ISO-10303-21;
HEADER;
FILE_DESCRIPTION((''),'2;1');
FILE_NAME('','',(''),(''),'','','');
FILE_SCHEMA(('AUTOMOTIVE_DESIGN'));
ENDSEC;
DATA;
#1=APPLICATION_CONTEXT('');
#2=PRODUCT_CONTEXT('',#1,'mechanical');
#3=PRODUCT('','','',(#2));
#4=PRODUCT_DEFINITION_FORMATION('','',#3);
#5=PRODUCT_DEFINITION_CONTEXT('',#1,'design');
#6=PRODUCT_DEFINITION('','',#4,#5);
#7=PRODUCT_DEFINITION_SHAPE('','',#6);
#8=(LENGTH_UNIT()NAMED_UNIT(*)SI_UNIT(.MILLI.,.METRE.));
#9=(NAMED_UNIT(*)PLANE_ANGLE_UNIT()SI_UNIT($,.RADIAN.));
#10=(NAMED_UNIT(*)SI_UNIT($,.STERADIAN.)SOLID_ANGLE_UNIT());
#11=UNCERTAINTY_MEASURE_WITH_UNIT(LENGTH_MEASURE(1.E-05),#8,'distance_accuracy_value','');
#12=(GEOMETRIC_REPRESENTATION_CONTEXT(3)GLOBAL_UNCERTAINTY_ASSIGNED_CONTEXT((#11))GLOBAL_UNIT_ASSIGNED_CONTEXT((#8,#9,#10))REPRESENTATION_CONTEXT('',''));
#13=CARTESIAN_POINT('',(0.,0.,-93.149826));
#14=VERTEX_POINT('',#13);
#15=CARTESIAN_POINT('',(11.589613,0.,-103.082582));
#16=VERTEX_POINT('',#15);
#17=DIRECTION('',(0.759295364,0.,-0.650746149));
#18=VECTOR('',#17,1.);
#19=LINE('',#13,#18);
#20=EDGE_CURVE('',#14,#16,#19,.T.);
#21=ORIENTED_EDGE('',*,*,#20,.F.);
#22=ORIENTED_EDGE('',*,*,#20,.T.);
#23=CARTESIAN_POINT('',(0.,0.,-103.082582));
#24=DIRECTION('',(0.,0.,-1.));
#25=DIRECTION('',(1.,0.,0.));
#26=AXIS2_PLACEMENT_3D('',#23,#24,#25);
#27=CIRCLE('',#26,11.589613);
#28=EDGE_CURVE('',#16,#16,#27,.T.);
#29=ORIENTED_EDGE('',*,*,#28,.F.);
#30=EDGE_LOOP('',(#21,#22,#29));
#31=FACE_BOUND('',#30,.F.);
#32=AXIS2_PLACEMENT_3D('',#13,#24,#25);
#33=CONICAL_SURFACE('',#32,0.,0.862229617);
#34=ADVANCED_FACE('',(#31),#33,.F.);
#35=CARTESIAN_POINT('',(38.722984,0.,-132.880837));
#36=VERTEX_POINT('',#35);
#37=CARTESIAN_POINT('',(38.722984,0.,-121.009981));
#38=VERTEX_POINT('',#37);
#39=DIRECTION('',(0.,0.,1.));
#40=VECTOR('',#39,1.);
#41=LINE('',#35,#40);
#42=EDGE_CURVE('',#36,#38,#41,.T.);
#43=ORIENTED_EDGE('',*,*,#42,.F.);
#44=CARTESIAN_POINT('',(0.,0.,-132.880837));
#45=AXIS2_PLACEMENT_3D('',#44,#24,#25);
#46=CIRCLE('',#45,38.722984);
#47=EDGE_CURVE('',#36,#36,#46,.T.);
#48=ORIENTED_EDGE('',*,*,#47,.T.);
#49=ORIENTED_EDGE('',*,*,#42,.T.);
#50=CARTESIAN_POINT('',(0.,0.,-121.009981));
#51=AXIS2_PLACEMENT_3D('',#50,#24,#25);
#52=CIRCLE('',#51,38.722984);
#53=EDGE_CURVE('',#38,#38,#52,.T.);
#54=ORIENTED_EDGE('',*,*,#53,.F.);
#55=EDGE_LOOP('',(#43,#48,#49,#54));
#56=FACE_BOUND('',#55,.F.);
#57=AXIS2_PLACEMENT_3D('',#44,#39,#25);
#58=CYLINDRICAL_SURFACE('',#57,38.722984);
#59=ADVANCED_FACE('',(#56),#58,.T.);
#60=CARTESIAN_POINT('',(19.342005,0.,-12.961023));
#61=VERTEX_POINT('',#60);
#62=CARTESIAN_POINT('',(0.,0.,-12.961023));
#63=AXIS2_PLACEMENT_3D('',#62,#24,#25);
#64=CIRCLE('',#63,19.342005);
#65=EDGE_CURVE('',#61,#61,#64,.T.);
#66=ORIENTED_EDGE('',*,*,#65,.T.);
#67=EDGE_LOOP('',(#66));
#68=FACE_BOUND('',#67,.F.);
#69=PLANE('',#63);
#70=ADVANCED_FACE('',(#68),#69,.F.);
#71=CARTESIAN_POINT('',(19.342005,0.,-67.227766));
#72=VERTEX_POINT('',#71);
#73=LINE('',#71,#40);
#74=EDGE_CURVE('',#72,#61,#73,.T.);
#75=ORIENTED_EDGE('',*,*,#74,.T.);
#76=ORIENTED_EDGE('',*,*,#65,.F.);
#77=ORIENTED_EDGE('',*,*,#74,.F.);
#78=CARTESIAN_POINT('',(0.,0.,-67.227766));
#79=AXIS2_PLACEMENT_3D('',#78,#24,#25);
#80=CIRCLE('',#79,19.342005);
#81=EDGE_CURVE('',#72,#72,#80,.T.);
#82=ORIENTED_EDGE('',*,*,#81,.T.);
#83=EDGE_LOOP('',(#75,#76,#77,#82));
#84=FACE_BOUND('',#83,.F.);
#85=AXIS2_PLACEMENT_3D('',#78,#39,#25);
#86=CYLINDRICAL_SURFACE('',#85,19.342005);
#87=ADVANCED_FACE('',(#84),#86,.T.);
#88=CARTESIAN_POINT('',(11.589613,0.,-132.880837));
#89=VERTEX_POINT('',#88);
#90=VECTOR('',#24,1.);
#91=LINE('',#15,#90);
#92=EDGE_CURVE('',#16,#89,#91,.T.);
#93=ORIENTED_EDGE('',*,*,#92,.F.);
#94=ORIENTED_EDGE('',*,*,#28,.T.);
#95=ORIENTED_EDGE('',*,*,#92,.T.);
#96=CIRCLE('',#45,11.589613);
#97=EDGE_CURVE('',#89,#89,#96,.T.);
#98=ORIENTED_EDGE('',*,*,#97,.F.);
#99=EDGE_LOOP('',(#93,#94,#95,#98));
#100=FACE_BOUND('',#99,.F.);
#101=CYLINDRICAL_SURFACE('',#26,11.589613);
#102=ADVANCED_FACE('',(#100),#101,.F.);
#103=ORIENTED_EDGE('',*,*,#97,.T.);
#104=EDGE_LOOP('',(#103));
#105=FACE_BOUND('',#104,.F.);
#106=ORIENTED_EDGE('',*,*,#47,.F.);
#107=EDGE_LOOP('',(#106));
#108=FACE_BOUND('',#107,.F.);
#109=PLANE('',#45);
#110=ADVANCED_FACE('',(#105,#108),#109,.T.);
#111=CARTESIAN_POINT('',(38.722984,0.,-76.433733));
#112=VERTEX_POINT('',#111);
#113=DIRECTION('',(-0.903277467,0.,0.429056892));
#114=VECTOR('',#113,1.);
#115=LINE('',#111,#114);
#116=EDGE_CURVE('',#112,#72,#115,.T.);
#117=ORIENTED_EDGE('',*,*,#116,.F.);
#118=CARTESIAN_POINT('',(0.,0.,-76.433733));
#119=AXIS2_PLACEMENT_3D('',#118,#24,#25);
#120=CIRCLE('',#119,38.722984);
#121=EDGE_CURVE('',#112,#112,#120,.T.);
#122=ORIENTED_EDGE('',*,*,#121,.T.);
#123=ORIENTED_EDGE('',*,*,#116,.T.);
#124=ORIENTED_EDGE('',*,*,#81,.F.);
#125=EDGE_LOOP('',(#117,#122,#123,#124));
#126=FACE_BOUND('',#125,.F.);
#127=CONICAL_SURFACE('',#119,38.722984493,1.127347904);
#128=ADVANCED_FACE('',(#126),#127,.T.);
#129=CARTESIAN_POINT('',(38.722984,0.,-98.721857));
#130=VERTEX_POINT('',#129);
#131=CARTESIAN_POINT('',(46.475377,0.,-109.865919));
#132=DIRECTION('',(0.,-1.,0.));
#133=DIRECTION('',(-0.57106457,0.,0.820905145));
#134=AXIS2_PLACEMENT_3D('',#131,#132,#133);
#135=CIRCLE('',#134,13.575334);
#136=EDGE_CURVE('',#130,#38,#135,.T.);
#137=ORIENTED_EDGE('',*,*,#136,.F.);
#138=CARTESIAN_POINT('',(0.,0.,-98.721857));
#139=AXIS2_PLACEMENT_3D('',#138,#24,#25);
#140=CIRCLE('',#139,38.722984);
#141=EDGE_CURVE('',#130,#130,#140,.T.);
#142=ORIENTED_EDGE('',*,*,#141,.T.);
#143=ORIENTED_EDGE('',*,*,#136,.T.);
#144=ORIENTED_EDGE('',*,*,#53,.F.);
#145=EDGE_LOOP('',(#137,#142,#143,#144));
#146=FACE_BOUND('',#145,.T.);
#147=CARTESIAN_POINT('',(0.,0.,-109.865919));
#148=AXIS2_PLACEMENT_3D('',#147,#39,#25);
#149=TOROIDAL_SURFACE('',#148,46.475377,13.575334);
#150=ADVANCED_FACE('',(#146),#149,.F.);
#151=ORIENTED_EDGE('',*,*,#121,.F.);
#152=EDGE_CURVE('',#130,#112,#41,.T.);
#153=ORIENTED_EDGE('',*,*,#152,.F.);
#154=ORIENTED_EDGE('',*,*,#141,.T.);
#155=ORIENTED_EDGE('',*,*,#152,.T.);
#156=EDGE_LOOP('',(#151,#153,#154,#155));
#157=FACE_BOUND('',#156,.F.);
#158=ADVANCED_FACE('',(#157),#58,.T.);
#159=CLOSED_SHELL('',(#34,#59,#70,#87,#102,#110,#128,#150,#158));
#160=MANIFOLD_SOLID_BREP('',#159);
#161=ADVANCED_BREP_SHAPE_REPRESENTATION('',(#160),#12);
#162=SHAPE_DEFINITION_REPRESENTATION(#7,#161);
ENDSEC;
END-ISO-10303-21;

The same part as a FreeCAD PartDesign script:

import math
import FreeCAD as App
import Part
import Sketcher
from FreeCAD import Vector


def add_polygon(sketch, points):
    """Adds a closed chain of lines whose ends are joined by coincident constraints."""
    first, n = sketch.GeometryCount, len(points)
    for a, b in zip(points, points[1:] + points[:1]):
        sketch.addGeometry(Part.LineSegment(App.Vector(*a, 0), App.Vector(*b, 0)), False)
    for i in range(n):
        sketch.addConstraint(Sketcher.Constraint("Coincident", first + i, 2, first + (i + 1) % n, 1))

doc = App.newDocument("Part")
body = doc.addObject("PartDesign::Body", "Body")

sketch1 = body.newObject("Sketcher::SketchObject", "Sketch")
sketch1.AttachmentSupport = (doc.getObject("XZ_Plane"), [""])
sketch1.MapMode = "FlatFace"
add_polygon(sketch1, [(19, -13), (0, -13), (0, -93), (12, -103), (12, -133), (39, -133), (39, -76), (19, -67)])
sketch1.addConstraint([
    Sketcher.Constraint("Horizontal", 0),
    Sketcher.Constraint("Vertical", 1),
    Sketcher.Constraint("Vertical", 3),
    Sketcher.Constraint("Horizontal", 4),
    Sketcher.Constraint("Vertical", 5),
    Sketcher.Constraint("Vertical", 7),
    Sketcher.Constraint("PointOnObject", 0, 2, -2),
    Sketcher.Constraint("DistanceX", 4, 1, 4, 2, 27.133372),
    Sketcher.Constraint("DistanceX", 0, 2, 0, 1, 19.342005),
    Sketcher.Constraint("DistanceY", 1, 2, 1, 1, 80.188803),
    Sketcher.Constraint("DistanceY", 3, 2, 3, 1, 29.798254),
    Sketcher.Constraint("DistanceY", 5, 1, 5, 2, 56.447104),
    Sketcher.Constraint("DistanceY", 7, 1, 7, 2, 54.266743),
    Sketcher.Constraint("DistanceY", 2, 2, 0, 2, 90.12156),
    Sketcher.Constraint("DistanceX", 6, 2, 5, 2, 19.380979),
    Sketcher.Constraint("DistanceY", 0, 2, -1, 1, 12.961023),
])
revolution = body.newObject("PartDesign::Revolution", "Revolution")
revolution.Profile = sketch1
revolution.ReferenceAxis = (sketch1, ["V_Axis"])
revolution.Angle = 360

sketch2 = body.newObject("Sketcher::SketchObject", "Sketch001")
sketch2.AttachmentSupport = (doc.getObject("XZ_Plane"), [""])
sketch2.MapMode = "FlatFace"
sketch2.addGeometry([
    Part.LineSegment(Vector(39, -121, 0), Vector(39, -99, 0)),
    Part.ArcOfCircle(Part.Circle(Vector(46, -110, 0), Vector(0, 0, 1), 14), math.radians(125), math.radians(235)),
], False)
sketch2.addConstraint([
    Sketcher.Constraint("Coincident", 0, 1, 1, 2),
    Sketcher.Constraint("Coincident", 1, 1, 0, 2),
    Sketcher.Constraint("Vertical", 0),
    Sketcher.Constraint("Radius", 1, 13.575334),
    Sketcher.Constraint("DistanceY", 0, 1, 0, 2, 22.288124),
    Sketcher.Constraint("DistanceY", 1, 3, -1, 1, 109.865919),
    Sketcher.Constraint("DistanceX", -1, 1, 1, 3, 46.475377),
])
groove = body.newObject("PartDesign::Groove", "Groove")
groove.Profile = sketch2
groove.ReferenceAxis = (sketch2, ["V_Axis"])
groove.Angle = 360

doc.recompute()
